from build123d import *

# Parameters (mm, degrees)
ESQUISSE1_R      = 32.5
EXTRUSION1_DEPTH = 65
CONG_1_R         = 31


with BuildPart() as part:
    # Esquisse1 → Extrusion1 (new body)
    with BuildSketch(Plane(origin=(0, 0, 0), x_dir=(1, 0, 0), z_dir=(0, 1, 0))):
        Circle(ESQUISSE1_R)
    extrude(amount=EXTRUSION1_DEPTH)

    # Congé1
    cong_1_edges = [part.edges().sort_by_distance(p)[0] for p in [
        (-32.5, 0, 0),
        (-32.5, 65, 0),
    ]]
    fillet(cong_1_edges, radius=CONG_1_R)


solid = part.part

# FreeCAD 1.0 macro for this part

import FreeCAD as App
import Part
import Sketcher
from FreeCAD import Vector


def edges_at(feature, points):
    """Names of the edges that pass closest to the given points."""
    edges = feature.Shape.Edges
    near = lambda p: min(range(len(edges)), key=lambda i: edges[i].distToShape(Part.Vertex(*p))[0])
    return sorted({f"Edge{near(p) + 1}" for p in points})

doc = App.newDocument("Part")
body = doc.addObject("PartDesign::Body", "Body")

sketch1 = body.newObject("Sketcher::SketchObject", "Sketch")
sketch1.AttachmentSupport = (doc.getObject("XZ_Plane"), [""])
sketch1.MapMode = "FlatFace"
sketch1.addGeometry(Part.Circle(Vector(0, 0, 0), Vector(0, 0, 1), 32), False)
sketch1.addConstraint([
    Sketcher.Constraint("Coincident", 0, 3, -1, 1),
    Sketcher.Constraint("Diameter", 0, 65.0),
])
pad1 = body.newObject("PartDesign::Pad", "Pad")
pad1.Profile = sketch1
pad1.Length = 65
pad1.Reversed = True
doc.recompute()

fillet = body.newObject("PartDesign::Fillet", "Fillet")
fillet.Base = (pad1, edges_at(pad1, [(-32.5, 0, 0), (-32.5, 65, 0)]))
fillet.Radius = 31

doc.recompute()
